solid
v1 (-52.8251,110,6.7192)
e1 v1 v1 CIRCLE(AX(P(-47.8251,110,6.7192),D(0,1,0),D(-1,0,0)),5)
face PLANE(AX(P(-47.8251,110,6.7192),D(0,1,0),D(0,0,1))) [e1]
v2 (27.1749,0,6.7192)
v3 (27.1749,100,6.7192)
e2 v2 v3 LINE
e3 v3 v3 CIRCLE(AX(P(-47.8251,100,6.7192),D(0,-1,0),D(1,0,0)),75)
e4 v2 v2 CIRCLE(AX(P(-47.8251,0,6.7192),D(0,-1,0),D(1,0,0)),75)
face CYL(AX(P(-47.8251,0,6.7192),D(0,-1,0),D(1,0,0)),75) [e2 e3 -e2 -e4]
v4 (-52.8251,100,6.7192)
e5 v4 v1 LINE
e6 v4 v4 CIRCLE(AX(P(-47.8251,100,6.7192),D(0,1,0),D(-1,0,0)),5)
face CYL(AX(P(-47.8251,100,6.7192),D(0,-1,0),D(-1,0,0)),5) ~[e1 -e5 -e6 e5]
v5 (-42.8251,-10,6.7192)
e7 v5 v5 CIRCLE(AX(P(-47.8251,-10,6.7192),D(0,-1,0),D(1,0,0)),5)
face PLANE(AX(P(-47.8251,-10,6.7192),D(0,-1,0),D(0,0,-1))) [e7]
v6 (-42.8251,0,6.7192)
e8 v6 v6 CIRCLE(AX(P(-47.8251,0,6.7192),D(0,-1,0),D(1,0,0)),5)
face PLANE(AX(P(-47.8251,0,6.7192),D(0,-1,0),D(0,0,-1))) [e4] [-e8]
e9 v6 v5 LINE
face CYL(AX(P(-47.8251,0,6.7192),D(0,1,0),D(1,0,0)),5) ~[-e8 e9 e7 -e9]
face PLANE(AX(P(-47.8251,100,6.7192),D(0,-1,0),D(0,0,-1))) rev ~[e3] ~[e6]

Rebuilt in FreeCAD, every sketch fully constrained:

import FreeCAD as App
import Part
import Sketcher
from FreeCAD import Vector
Q = App.Units.Quantity

doc = App.newDocument("Part")
params = doc.addObject("Spreadsheet::Sheet", "Params")
for row, (alias, value) in enumerate([
    ("pad1_length", "3.9370079 in"),
    ("pad2_length", "0.3937008 in"),
    ("pad3_length", "0.3937008 in"),
], start=1):
    params.set(f"A{row}", alias)
    params.set(f"B{row}", "=" + value)
    params.setAlias(f"B{row}", alias)

body = doc.addObject("PartDesign::Body", "Body")

# Sketch on XZ plane
sketch1 = doc.addObject("Sketcher::SketchObject", "Sketch")
body.addObject(sketch1)
sketch1.AttachmentSupport = (doc.XZ_Plane, [""])
sketch1.MapMode = "FlatFace"
sketch1.addGeometry(Part.Circle(Vector(-48, 7, 0), Vector(0, 0, 1), 75), False)
sketch1.addConstraint([
    Sketcher.Constraint("Diameter", 0, Q("5.9055 in")),
    Sketcher.Constraint("DistanceX", 0, 3, -1, 1, 47.825),
    Sketcher.Constraint("DistanceY", -1, 1, 0, 3, 6.7192),
])
pad1 = doc.addObject("PartDesign::Pad", "Pad")
body.addObject(pad1)
pad1.Profile = sketch1
pad1.setExpression("Length", "Params.pad1_length")
pad1.Reversed = True

# Sketch on XZ plane
sketch2 = doc.addObject("Sketcher::SketchObject", "Sketch001")
body.addObject(sketch2)
sketch2.AttachmentSupport = (doc.XZ_Plane, [""])
sketch2.MapMode = "FlatFace"
sketch2.addGeometry(Part.Circle(Vector(-48, 7, 0), Vector(0, 0, 1), 5), False)
sketch2.addConstraint([
    Sketcher.Constraint("Diameter", 0, Q("0.3937 in")),
    Sketcher.Constraint("DistanceX", 0, 3, -1, 1, 47.825),
    Sketcher.Constraint("DistanceY", -1, 1, 0, 3, 6.7192),
])
pad2 = doc.addObject("PartDesign::Pad", "Pad001")
body.addObject(pad2)
pad2.Profile = sketch2
pad2.setExpression("Length", "Params.pad2_length")

# Sketch on XZ plane
sketch3 = doc.addObject("Sketcher::SketchObject", "Sketch002")
body.addObject(sketch3)
sketch3.AttachmentSupport = (doc.XZ_Plane, [""])
sketch3.MapMode = "FlatFace"
sketch3.AttachmentOffset = App.Placement(Vector(0, 0, -3.9370079 * 25.4), App.Rotation())
sketch3.addGeometry(Part.Circle(Vector(-48, 7, 0), Vector(0, 0, 1), 5), False)
sketch3.addConstraint([
    Sketcher.Constraint("Diameter", 0, Q("0.3937 in")),
    Sketcher.Constraint("DistanceX", 0, 3, -1, 1, 47.825),
    Sketcher.Constraint("DistanceY", -1, 1, 0, 3, 6.7192),
])
pad3 = doc.addObject("PartDesign::Pad", "Pad002")
body.addObject(pad3)
pad3.Profile = sketch3
pad3.setExpression("Length", "Params.pad3_length")
pad3.Reversed = True

doc.recompute()
